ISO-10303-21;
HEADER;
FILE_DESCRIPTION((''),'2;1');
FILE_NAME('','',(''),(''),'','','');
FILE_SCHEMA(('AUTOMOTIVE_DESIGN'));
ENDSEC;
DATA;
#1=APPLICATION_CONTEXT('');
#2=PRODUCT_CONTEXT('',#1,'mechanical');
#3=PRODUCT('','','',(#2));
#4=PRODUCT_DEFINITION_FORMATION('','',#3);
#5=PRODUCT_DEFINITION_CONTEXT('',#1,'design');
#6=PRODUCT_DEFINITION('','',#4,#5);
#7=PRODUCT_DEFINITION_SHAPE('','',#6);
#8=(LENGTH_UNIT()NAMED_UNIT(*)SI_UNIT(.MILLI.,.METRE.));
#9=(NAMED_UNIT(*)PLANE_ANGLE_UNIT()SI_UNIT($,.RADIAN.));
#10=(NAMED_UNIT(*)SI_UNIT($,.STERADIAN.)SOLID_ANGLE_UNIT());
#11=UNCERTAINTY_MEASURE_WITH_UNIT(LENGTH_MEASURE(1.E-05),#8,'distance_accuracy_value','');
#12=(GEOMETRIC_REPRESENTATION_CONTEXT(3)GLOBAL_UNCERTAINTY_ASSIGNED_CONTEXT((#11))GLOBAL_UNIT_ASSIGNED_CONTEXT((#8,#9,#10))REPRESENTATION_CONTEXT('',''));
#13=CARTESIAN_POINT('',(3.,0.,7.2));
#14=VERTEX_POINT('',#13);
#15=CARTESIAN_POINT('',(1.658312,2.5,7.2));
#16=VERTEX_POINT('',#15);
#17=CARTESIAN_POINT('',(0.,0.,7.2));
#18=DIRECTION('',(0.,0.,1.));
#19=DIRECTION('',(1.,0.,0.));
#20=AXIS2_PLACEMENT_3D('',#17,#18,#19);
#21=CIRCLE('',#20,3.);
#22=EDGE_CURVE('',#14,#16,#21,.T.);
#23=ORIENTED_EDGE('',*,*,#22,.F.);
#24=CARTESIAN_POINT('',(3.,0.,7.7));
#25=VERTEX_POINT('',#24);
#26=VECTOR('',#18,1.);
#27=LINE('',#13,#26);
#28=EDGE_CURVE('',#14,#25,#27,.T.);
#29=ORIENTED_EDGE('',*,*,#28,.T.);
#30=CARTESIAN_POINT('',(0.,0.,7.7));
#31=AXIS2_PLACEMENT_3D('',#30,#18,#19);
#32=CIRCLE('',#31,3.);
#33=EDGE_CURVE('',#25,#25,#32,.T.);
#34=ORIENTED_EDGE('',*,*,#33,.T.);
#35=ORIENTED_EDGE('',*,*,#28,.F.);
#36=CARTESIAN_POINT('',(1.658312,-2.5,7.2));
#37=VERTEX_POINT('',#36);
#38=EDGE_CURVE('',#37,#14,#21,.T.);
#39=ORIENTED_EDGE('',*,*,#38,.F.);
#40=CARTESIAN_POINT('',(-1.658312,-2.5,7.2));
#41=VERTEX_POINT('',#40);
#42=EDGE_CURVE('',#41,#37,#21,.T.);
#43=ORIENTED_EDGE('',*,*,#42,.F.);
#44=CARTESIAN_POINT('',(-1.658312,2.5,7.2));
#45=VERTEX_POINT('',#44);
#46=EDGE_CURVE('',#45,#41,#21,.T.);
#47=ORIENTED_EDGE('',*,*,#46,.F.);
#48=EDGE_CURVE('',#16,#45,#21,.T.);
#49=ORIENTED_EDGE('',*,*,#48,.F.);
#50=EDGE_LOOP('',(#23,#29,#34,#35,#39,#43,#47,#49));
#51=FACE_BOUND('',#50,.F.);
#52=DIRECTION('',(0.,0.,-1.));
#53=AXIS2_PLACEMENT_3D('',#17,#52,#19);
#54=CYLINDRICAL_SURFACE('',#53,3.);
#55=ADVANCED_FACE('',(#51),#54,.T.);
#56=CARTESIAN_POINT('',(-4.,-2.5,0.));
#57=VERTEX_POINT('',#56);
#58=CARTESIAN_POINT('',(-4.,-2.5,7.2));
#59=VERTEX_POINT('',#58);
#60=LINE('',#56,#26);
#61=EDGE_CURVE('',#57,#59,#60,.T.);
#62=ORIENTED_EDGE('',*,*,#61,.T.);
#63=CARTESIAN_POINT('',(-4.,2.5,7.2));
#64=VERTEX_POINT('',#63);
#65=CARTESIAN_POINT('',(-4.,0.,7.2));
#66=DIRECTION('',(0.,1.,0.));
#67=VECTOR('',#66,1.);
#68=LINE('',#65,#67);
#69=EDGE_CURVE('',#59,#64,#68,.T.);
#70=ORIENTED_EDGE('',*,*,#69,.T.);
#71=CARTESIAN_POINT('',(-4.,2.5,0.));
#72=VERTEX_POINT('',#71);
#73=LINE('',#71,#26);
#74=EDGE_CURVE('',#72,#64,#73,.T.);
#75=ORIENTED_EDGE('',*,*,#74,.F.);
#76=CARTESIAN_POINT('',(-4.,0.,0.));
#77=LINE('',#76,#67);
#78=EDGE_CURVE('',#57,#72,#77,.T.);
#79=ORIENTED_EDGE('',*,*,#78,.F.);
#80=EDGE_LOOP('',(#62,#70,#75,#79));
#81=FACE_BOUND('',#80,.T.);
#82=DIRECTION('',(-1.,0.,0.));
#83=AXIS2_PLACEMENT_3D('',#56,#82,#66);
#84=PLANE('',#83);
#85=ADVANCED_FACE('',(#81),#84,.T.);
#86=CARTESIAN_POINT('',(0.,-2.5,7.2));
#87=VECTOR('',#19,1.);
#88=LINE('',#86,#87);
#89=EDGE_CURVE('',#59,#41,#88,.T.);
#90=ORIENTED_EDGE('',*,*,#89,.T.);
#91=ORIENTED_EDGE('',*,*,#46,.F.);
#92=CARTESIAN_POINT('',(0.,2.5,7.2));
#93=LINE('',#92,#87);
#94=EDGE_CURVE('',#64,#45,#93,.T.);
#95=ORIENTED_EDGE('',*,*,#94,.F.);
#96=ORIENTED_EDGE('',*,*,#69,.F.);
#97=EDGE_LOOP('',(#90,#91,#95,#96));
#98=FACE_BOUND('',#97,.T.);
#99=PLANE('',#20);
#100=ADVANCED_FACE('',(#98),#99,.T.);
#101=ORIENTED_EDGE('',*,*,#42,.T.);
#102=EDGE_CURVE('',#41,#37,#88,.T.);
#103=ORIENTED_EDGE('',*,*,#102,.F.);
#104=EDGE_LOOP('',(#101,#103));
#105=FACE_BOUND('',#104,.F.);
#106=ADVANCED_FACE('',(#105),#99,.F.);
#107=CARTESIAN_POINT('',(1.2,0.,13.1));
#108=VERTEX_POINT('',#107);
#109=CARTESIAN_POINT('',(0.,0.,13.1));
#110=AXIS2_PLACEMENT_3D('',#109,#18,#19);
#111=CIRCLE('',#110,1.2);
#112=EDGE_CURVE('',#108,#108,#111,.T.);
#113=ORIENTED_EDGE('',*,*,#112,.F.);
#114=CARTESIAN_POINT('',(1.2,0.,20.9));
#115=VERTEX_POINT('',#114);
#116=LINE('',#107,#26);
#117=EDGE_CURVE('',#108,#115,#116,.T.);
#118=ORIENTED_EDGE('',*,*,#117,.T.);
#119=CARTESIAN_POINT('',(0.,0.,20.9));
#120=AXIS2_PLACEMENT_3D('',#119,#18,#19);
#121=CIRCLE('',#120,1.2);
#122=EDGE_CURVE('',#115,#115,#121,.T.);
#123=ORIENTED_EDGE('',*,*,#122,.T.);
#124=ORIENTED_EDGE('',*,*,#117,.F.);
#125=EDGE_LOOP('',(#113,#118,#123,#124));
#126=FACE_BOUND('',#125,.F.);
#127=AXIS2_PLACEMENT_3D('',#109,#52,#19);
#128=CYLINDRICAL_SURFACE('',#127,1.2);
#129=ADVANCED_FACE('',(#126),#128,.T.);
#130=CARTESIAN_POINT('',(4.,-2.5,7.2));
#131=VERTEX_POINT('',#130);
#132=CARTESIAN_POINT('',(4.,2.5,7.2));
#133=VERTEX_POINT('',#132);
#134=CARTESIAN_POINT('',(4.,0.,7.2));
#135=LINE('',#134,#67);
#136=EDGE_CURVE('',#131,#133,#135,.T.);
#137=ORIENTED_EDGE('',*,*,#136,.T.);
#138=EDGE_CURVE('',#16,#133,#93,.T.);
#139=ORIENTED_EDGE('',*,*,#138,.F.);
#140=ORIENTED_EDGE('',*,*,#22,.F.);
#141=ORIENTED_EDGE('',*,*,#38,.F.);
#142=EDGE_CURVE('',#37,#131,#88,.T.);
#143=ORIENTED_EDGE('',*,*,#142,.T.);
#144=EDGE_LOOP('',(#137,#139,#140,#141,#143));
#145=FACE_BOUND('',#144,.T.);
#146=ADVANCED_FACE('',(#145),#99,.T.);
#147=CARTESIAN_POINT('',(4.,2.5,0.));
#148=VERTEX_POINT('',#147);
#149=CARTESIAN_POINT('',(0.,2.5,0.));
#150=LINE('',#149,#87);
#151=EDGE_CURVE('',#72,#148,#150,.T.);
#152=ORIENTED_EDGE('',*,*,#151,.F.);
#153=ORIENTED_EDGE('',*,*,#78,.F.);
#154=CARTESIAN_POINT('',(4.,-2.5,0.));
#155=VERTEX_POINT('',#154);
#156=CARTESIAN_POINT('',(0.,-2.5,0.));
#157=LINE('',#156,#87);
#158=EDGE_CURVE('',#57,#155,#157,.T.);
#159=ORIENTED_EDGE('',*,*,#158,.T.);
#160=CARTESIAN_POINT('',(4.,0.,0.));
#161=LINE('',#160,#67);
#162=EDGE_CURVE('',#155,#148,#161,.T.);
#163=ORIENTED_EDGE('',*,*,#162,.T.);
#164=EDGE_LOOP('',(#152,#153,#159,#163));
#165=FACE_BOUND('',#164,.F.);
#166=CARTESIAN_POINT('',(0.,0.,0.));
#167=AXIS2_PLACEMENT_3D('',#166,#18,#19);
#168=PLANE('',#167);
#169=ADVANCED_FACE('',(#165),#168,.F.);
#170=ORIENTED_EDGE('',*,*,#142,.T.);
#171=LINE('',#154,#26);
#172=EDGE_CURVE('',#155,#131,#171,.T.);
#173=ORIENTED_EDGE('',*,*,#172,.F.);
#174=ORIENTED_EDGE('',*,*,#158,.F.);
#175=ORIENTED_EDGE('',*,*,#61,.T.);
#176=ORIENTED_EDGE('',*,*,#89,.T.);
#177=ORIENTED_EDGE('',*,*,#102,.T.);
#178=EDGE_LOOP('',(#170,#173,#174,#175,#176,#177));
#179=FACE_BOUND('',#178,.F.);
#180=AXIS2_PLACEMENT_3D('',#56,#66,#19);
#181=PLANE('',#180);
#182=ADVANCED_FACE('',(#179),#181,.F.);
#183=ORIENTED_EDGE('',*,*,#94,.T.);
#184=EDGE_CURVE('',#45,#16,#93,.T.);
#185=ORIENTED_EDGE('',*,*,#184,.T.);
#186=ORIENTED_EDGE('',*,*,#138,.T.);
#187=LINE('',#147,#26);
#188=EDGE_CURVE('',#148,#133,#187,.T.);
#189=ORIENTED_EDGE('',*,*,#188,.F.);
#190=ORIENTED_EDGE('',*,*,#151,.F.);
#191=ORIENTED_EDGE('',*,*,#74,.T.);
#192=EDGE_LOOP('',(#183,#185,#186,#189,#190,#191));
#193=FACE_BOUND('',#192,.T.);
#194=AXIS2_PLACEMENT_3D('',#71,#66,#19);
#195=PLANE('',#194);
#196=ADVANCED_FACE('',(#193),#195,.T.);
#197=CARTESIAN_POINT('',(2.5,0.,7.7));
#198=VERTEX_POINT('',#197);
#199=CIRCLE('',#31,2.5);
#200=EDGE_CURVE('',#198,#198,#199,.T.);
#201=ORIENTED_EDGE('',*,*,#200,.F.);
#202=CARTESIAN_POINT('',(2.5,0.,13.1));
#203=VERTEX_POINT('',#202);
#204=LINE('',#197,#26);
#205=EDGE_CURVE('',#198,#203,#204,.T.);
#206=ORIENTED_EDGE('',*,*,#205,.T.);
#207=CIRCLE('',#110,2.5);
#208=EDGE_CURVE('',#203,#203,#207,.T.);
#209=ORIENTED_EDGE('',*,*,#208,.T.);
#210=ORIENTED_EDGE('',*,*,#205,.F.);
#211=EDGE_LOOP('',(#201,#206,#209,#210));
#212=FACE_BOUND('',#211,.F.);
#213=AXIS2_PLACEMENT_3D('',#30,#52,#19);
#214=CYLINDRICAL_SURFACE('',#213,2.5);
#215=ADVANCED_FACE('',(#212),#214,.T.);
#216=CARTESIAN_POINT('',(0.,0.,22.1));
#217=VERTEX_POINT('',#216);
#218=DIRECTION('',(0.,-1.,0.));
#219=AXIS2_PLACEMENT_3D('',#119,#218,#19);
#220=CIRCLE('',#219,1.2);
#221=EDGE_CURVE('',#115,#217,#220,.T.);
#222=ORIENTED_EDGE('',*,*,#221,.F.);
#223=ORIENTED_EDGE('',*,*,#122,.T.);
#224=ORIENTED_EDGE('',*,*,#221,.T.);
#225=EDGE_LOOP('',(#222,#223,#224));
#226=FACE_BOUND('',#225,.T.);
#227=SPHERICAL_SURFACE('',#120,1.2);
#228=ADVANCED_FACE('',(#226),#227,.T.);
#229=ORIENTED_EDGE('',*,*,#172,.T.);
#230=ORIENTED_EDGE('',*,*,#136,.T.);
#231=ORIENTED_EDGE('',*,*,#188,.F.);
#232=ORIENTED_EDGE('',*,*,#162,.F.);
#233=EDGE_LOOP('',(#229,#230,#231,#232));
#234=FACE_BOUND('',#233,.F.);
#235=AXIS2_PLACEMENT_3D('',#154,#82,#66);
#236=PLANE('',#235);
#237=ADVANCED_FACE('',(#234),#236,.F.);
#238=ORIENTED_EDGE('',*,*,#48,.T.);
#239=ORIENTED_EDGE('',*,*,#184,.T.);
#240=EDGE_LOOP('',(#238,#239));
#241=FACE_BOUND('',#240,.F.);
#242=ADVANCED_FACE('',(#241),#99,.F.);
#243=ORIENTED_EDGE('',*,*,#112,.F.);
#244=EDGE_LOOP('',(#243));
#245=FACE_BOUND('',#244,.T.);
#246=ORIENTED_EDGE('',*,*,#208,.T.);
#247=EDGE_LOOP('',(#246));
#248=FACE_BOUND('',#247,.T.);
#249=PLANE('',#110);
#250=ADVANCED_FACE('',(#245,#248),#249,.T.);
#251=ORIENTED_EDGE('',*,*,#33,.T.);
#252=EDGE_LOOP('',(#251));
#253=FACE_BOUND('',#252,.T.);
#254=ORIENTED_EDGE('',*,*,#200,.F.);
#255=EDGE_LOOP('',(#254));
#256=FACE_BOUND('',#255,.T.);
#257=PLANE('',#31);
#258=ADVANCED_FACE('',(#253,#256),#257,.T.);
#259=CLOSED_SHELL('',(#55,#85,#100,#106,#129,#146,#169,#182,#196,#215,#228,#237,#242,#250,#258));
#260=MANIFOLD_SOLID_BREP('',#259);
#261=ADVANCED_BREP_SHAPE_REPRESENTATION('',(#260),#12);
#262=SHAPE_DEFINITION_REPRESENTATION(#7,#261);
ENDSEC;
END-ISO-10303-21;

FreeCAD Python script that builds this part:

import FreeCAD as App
import Part
import Sketcher

V = App.Vector


def edges_at(feature, points):
    """Names of the edges that pass closest to the given points."""
    edges = feature.Shape.Edges
    near = lambda p: min(range(len(edges)), key=lambda i: edges[i].distToShape(Part.Vertex(*p))[0])
    return sorted({f"Edge{near(p) + 1}" for p in points})


def add_polygon(sketch, points):
    """Adds a closed chain of lines whose ends are joined by coincident constraints."""
    first, n = sketch.GeometryCount, len(points)
    for a, b in zip(points, points[1:] + points[:1]):
        sketch.addGeometry(Part.LineSegment(App.Vector(*a, 0), App.Vector(*b, 0)), False)
    for i in range(n):
        sketch.addConstraint(Sketcher.Constraint("Coincident", first + i, 2, first + (i + 1) % n, 1))

doc = App.newDocument("Part")
body = doc.addObject("PartDesign::Body", "Body")

# Sketch on XY plane
sketch1 = body.newObject("Sketcher::SketchObject", "Sketch")
sketch1.AttachmentSupport = (doc.getObject("XY_Plane"), [""])
sketch1.MapMode = "FlatFace"
add_polygon(sketch1, [(-4, 2), (-4, -2), (4, -2), (4, 2)])  # lines 0-3
sketch1.addConstraint([
    Sketcher.Constraint("Vertical", 0),
    Sketcher.Constraint("Horizontal", 1),
    Sketcher.Constraint("Vertical", 2),
    Sketcher.Constraint("Horizontal", 3),
    Sketcher.Constraint("Symmetric", 0, 2, 2, 2, -1, 1),
    Sketcher.Constraint("DistanceX", 1, 1, 1, 2, 8.0),
    Sketcher.Constraint("DistanceY", 0, 2, 0, 1, 5.0),
])
pad1 = body.newObject("PartDesign::Pad", "Pad")
pad1.Profile = sketch1
pad1.Length = 7.2

# Sketch on XY plane
sketch2 = body.newObject("Sketcher::SketchObject", "Sketch001")
sketch2.AttachmentSupport = (doc.getObject("XY_Plane"), [""])
sketch2.MapMode = "FlatFace"
sketch2.AttachmentOffset = App.Placement(V(0, 0, 7.2), App.Rotation())
sketch2.addGeometry(Part.Circle(V(0, 0, 0), V(0, 0, 1), 3), False)
sketch2.addConstraint([
    Sketcher.Constraint("Coincident", 0, 3, -1, 1),
    Sketcher.Constraint("Diameter", 0, 6.0),
])
pad2 = body.newObject("PartDesign::Pad", "Pad001")
pad2.Profile = sketch2
pad2.Length = 0.5

# Sketch on XY plane
sketch3 = body.newObject("Sketcher::SketchObject", "Sketch002")
sketch3.AttachmentSupport = (doc.getObject("XY_Plane"), [""])
sketch3.MapMode = "FlatFace"
sketch3.AttachmentOffset = App.Placement(V(0, 0, 7.7), App.Rotation())
sketch3.addGeometry(Part.Circle(V(0, 0, 0), V(0, 0, 1), 2.5), False)
sketch3.addConstraint([
    Sketcher.Constraint("Coincident", 0, 3, -1, 1),
    Sketcher.Constraint("Diameter", 0, 5.0),
])
pad3 = body.newObject("PartDesign::Pad", "Pad002")
pad3.Profile = sketch3
pad3.Length = 5.4

# Sketch on XY plane
sketch4 = body.newObject("Sketcher::SketchObject", "Sketch003")
sketch4.AttachmentSupport = (doc.getObject("XY_Plane"), [""])
sketch4.MapMode = "FlatFace"
sketch4.AttachmentOffset = App.Placement(V(0, 0, 13.1), App.Rotation())
sketch4.addGeometry(Part.Circle(V(0, 0, 0), V(0, 0, 1), 1.2), False)
sketch4.addConstraint([
    Sketcher.Constraint("Coincident", 0, 3, -1, 1),
    Sketcher.Constraint("Diameter", 0, 2.4),
])
pad4 = body.newObject("PartDesign::Pad", "Pad003")
pad4.Profile = sketch4
pad4.Length = 9
doc.recompute()

fillet = body.newObject("PartDesign::Fillet", "Fillet")
fillet.Base = (pad4, edges_at(pad4, [(-1.2, 0, 22.1)]))
fillet.Radius = 1.2

doc.recompute()
